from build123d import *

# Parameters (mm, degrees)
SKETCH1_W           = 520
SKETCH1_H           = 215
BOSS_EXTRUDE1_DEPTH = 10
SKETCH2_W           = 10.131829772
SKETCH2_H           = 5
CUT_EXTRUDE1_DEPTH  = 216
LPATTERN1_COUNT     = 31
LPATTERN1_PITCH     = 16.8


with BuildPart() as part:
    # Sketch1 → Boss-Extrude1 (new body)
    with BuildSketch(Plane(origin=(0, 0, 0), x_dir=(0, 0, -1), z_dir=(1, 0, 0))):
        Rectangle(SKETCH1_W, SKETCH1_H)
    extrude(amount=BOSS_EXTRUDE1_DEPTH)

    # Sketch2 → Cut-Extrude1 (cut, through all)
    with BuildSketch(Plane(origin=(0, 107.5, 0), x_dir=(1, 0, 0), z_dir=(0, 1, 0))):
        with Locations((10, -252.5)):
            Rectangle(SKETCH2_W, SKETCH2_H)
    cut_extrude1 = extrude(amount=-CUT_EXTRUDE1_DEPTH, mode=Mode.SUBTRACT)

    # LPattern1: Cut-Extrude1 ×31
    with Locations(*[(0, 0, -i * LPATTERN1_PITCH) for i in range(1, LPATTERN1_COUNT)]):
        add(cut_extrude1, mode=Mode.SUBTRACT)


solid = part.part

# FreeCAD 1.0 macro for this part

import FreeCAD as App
import Part
import Sketcher
from FreeCAD import Vector


def add_polygon(sketch, points):
    """Adds a closed chain of lines whose ends are joined by coincident constraints."""
    first, n = sketch.GeometryCount, len(points)
    for a, b in zip(points, points[1:] + points[:1]):
        sketch.addGeometry(Part.LineSegment(App.Vector(*a, 0), App.Vector(*b, 0)), False)
    for i in range(n):
        sketch.addConstraint(Sketcher.Constraint("Coincident", first + i, 2, first + (i + 1) % n, 1))

doc = App.newDocument("Part")
body = doc.addObject("PartDesign::Body", "Body")

# Sketch on YZ plane
sketch1 = body.newObject("Sketcher::SketchObject", "Sketch")
sketch1.AttachmentSupport = (doc.getObject("YZ_Plane"), [""])
sketch1.MapMode = "FlatFace"
add_polygon(sketch1, [(107.5, 260), (-107.5, 260), (-107.5, -260), (107.5, -260)])  # lines 0-3
sketch1.addConstraint([
    Sketcher.Constraint("Horizontal", 0),
    Sketcher.Constraint("Vertical", 1),
    Sketcher.Constraint("Horizontal", 2),
    Sketcher.Constraint("Vertical", 3),
    Sketcher.Constraint("Symmetric", 0, 2, 2, 2, -1, 1),
    Sketcher.Constraint("DistanceX", 0, 2, 0, 1, 215.0),
    Sketcher.Constraint("DistanceY", 1, 2, 1, 1, 520.0),
])
pad1 = body.newObject("PartDesign::Pad", "Pad")
pad1.Profile = sketch1
pad1.Length = 10

# Sketch on XZ plane
sketch2 = body.newObject("Sketcher::SketchObject", "Sketch001")
sketch2.AttachmentSupport = (doc.getObject("XZ_Plane"), [""])
sketch2.MapMode = "FlatFace"
sketch2.AttachmentOffset = App.Placement(Vector(0, 0, -107.5), App.Rotation())
add_polygon(sketch2, [(4.934085, 250), (4.934085, 255), (15.065915, 255), (15.065915, 250)])  # lines 0-3
sketch2.addConstraint([
    Sketcher.Constraint("Vertical", 0),
    Sketcher.Constraint("Horizontal", 1),
    Sketcher.Constraint("Vertical", 2),
    Sketcher.Constraint("Horizontal", 3),
    Sketcher.Constraint("DistanceY", 0, 1, 0, 2, 5.0),
    Sketcher.Constraint("DistanceY", -1, 1, 0, 2, 255.0),
    Sketcher.Constraint("DistanceX", 1, 1, 1, 2, 10.13183),
    Sketcher.Constraint("DistanceX", -1, 1, 0, 2, 4.934085),
])
pocket1 = body.newObject("PartDesign::Pocket", "Pocket")
pocket1.Profile = sketch2
pocket1.Type = "ThroughAll"
pocket1.Reversed = True
doc.recompute()

linearpattern = body.newObject("PartDesign::LinearPattern", "LinearPattern")
linearpattern.Originals = [pocket1]
linearpattern.Direction = (doc.getObject("Z_Axis"), [""])
linearpattern.Mode = "offset"
linearpattern.Offset = 16.8
linearpattern.Occurrences = 31
linearpattern.Reversed = True
body.Tip = linearpattern

doc.recompute()
